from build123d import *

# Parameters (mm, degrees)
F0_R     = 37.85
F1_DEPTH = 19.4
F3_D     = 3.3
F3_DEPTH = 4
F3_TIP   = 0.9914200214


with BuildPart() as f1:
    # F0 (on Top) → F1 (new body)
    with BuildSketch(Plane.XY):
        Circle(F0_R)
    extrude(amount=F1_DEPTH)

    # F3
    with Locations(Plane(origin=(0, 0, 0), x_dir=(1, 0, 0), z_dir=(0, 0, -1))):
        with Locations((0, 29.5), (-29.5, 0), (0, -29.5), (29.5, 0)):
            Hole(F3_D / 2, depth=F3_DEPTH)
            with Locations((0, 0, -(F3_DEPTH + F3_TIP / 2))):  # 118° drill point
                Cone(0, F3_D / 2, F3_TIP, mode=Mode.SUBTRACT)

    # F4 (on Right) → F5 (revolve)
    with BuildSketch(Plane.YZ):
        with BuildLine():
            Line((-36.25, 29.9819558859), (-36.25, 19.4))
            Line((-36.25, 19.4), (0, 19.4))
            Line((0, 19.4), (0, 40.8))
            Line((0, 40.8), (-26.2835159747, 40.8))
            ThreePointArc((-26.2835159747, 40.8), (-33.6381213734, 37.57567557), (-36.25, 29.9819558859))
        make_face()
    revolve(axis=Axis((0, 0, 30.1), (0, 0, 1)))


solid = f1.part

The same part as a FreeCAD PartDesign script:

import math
import FreeCAD as App
import Part
import Sketcher

V = App.Vector
Q = App.Units.Quantity

doc = App.newDocument("Part")
params = doc.addObject("Spreadsheet::Sheet", "Params")
for row, (alias, value) in enumerate([
    ("sketch1_diameter", "75.7 mm"),
    ("pad1_length", "19.4 mm"),
    ("sketch2_diameter", "3.3 mm"),
    ("hole_diameter", "3.3 mm"),
    ("hole_depth", "4 mm"),
    ("sketch3_radius", "10 mm"),
    ("sketch3_height", "21.4 mm"),
    ("sketch3_width", "36.25 mm"),
    ("revolution_angle", "360 deg"),
], start=1):
    params.set(f"A{row}", alias)
    params.set(f"B{row}", "=" + value)
    params.setAlias(f"B{row}", alias)

body = doc.addObject("PartDesign::Body", "Body")

# Sketch on XY plane
sketch1 = body.newObject("Sketcher::SketchObject", "Sketch")
sketch1.AttachmentSupport = (doc.getObject("XY_Plane"), [""])
sketch1.MapMode = "FlatFace"
sketch1.addGeometry(Part.Circle(V(0, 0, 0), V(0, 0, 1), 37.85), False)
sketch1.addConstraint([
    Sketcher.Constraint("Coincident", 0, 3, -1, 1),
    Sketcher.Constraint("Diameter", 0, Q("75.7 mm")),
])
sketch1.setExpression("Constraints[1]", "Params.sketch1_diameter")
pad1 = body.newObject("PartDesign::Pad", "Pad")
pad1.Profile = sketch1
pad1.setExpression("Length", "Params.pad1_length")

# Sketch on XY plane
sketch2 = body.newObject("Sketcher::SketchObject", "Sketch001")
sketch2.AttachmentSupport = (doc.getObject("XY_Plane"), [""])
sketch2.MapMode = "FlatFace"
sketch2.addGeometry([
    Part.Circle(V(0, -29.5, 0), V(0, 0, 1), 1.65),
    Part.Circle(V(-29.5, 0, 0), V(0, 0, 1), 1.65),
    Part.Circle(V(0, 29.5, 0), V(0, 0, 1), 1.65),
    Part.Circle(V(29.5, 0, 0), V(0, 0, 1), 1.65),
], False)
sketch2.addConstraint([
    Sketcher.Constraint("Equal", 0, 1),
    Sketcher.Constraint("Equal", 1, 2),
    Sketcher.Constraint("Equal", 2, 3),
    Sketcher.Constraint("Symmetric", 0, 3, 2, 3, -1, 1),
    Sketcher.Constraint("Symmetric", 1, 3, 3, 3, -1, 1),
    Sketcher.Constraint("PointOnObject", 0, 3, -2),
    Sketcher.Constraint("PointOnObject", 1, 3, -1),
    Sketcher.Constraint("Diameter", 0, Q("3.3 mm")),
    Sketcher.Constraint("DistanceY", 0, 3, 2, 3, Q("59 mm")),
    Sketcher.Constraint("DistanceX", 1, 3, 3, 3, Q("59 mm")),
])
sketch2.setExpression("Constraints[7]", "Params.sketch2_diameter")
doc.recompute()
hole = body.newObject("PartDesign::Hole", "Hole")
hole.Profile = sketch2
hole.ThreadType = "None"
hole.setExpression("Diameter", "Params.hole_diameter")
hole.DepthType = "Dimension"
hole.setExpression("Depth", "Params.hole_depth")
hole.DrillPoint = "Angled"
hole.DrillPointAngle = 118
hole.Reversed = True

# Sketch on YZ plane
sketch3 = body.newObject("Sketcher::SketchObject", "Sketch002")
sketch3.AttachmentSupport = (doc.getObject("YZ_Plane"), [""])
sketch3.MapMode = "FlatFace"
sketch3.addGeometry([
    Part.LineSegment(V(-36.25, 29.981956, 0), V(-36.25, 19.4, 0)),  # 0
    Part.LineSegment(V(-36.25, 19.4, 0), V(0, 19.4, 0)),  # 1
    Part.LineSegment(V(0, 19.4, 0), V(0, 40.8, 0)),  # 2
    Part.LineSegment(V(0, 40.8, 0), V(-26.283516, 40.8, 0)),  # 3
    Part.ArcOfCircle(Part.Circle(V(-26.283516, 30.8, 0), V(0, 0, 1), 10), math.radians(90), math.radians(184.692291)),  # 4
], False)
sketch3.addConstraint([
    Sketcher.Constraint("Coincident", 0, 2, 1, 1),
    Sketcher.Constraint("Coincident", 1, 2, 2, 1),
    Sketcher.Constraint("Coincident", 2, 2, 3, 1),
    Sketcher.Constraint("Tangent", 3, 2, 4, 1),
    Sketcher.Constraint("Coincident", 4, 2, 0, 1),
    Sketcher.Constraint("Vertical", 0),
    Sketcher.Constraint("Horizontal", 1),
    Sketcher.Constraint("Vertical", 2),
    Sketcher.Constraint("Horizontal", 3),
    Sketcher.Constraint("PointOnObject", 1, 2, -2),
    Sketcher.Constraint("Radius", 4, Q("10 mm")),
    Sketcher.Constraint("DistanceY", 2, 1, 2, 2, Q("21.4 mm")),
    Sketcher.Constraint("DistanceX", 1, 1, 1, 2, Q("36.25 mm")),
    Sketcher.Constraint("DistanceY", -1, 1, 4, 3, Q("30.8 mm")),
    Sketcher.Constraint("DistanceX", 3, 2, 3, 1, Q("26.283516 mm")),
])
sketch3.setExpression("Constraints[10]", "Params.sketch3_radius")
sketch3.setExpression("Constraints[11]", "Params.sketch3_height")
sketch3.setExpression("Constraints[12]", "Params.sketch3_width")
revolution = body.newObject("PartDesign::Revolution", "Revolution")
revolution.Profile = sketch3
revolution.ReferenceAxis = (sketch3, ["V_Axis"])
revolution.setExpression("Angle", "Params.revolution_angle")

doc.recompute()
